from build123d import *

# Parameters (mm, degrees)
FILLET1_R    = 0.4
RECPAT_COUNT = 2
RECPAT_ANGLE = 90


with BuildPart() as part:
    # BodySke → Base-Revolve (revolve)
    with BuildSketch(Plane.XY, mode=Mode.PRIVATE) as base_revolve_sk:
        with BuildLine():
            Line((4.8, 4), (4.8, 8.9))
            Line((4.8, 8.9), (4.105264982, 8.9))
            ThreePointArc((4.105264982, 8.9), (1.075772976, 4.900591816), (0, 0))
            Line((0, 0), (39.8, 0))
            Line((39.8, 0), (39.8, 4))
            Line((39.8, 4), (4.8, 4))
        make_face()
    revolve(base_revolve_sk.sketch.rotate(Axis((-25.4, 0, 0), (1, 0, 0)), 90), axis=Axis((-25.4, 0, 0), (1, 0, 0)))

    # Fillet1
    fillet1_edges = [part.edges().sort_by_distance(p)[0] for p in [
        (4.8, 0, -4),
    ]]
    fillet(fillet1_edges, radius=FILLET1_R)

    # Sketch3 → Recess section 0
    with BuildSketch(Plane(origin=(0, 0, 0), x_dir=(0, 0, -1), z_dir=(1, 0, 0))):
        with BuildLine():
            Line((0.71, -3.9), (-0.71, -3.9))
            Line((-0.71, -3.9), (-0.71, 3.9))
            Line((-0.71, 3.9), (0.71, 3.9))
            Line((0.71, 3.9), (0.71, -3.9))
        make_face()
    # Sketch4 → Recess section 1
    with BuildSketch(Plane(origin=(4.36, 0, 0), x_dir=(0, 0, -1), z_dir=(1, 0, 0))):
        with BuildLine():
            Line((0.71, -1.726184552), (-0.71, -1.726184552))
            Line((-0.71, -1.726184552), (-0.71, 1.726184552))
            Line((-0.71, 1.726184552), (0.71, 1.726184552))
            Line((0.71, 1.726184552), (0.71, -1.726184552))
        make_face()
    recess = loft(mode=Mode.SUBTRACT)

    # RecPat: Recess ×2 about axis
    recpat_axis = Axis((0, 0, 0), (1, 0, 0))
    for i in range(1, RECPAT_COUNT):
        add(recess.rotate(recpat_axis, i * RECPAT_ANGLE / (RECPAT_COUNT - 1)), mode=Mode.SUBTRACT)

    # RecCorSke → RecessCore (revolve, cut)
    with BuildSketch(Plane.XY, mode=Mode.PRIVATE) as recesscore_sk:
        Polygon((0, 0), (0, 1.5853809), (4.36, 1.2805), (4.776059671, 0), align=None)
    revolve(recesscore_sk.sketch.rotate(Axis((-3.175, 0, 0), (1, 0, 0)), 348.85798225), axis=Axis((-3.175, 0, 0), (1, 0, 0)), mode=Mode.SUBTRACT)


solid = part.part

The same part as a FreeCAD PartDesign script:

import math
import FreeCAD as App
import Part
import Sketcher

V = App.Vector
Q = App.Units.Quantity


def edges_at(feature, points):
    """Names of the edges that pass closest to the given points."""
    edges = feature.Shape.Edges
    near = lambda p: min(range(len(edges)), key=lambda i: edges[i].distToShape(Part.Vertex(*p))[0])
    return sorted({f"Edge{near(p) + 1}" for p in points})


def add_polygon(sketch, points):
    """Adds a closed chain of lines whose ends are joined by coincident constraints."""
    first, n = sketch.GeometryCount, len(points)
    for a, b in zip(points, points[1:] + points[:1]):
        sketch.addGeometry(Part.LineSegment(App.Vector(*a, 0), App.Vector(*b, 0)), False)
    for i in range(n):
        sketch.addConstraint(Sketcher.Constraint("Coincident", first + i, 2, first + (i + 1) % n, 1))

doc = App.newDocument("Part")
body = doc.addObject("PartDesign::Body", "Body")

# Sketch on XY plane
sketch1 = body.newObject("Sketcher::SketchObject", "Sketch")
sketch1.AttachmentSupport = (doc.getObject("XY_Plane"), [""])
sketch1.MapMode = "FlatFace"
sketch1.addGeometry([
    Part.LineSegment(V(4.8, 4, 0), V(4.8, 8.9, 0)),  # 0
    Part.LineSegment(V(4.8, 8.9, 0), V(4.1, 8.9, 0)),  # 1
    Part.ArcOfCircle(Part.Circle(V(11.7, 0, 0), V(0, 0, 1), 11.7), math.radians(130), math.radians(180)),  # 2
    Part.LineSegment(V(0, 0, 0), V(39.8, 0, 0)),  # 3
    Part.LineSegment(V(39.8, 0, 0), V(39.8, 4, 0)),  # 4
    Part.LineSegment(V(39.8, 4, 0), V(4.8, 4, 0)),  # 5
], False)
sketch1.addConstraint([
    Sketcher.Constraint("Coincident", 0, 2, 1, 1),
    Sketcher.Constraint("Coincident", 1, 2, 2, 1),
    Sketcher.Constraint("Coincident", 2, 2, 3, 1),
    Sketcher.Constraint("Coincident", 3, 2, 4, 1),
    Sketcher.Constraint("Coincident", 4, 2, 5, 1),
    Sketcher.Constraint("Coincident", 5, 2, 0, 1),
    Sketcher.Constraint("Vertical", 0),
    Sketcher.Constraint("Horizontal", 1),
    Sketcher.Constraint("Horizontal", 3),
    Sketcher.Constraint("Vertical", 4),
    Sketcher.Constraint("Horizontal", 5),
    Sketcher.Constraint("Coincident", 2, 2, -1, 1),
    Sketcher.Constraint("PointOnObject", 2, 3, -1),
    Sketcher.Constraint("Radius", 2, Q("11.7 mm")),
    Sketcher.Constraint("DistanceX", 5, 2, 5, 1, Q("35 mm")),
    Sketcher.Constraint("DistanceY", 4, 1, 4, 2, Q("4 mm")),
    Sketcher.Constraint("DistanceX", 3, 1, 3, 2, Q("39.8 mm")),
    Sketcher.Constraint("DistanceY", 0, 1, 0, 2, Q("4.9 mm")),
])
revolution = body.newObject("PartDesign::Revolution", "Revolution")
revolution.Profile = sketch1
revolution.ReferenceAxis = (sketch1, ["H_Axis"])
revolution.Angle = 360
doc.recompute()

fillet = body.newObject("PartDesign::Fillet", "Fillet")
fillet.Base = (revolution, edges_at(revolution, [(4.8, 0, -4)]))
fillet.Radius = 0.4

# Sketch on YZ plane
sketch2 = body.newObject("Sketcher::SketchObject", "Sketch001")
sketch2.AttachmentSupport = (doc.getObject("YZ_Plane"), [""])
sketch2.MapMode = "FlatFace"
add_polygon(sketch2, [(-3.9, 0.7), (-3.9, -0.7), (3.9, -0.7), (3.9, 0.7)])  # lines 0-3
sketch2.addConstraint([
    Sketcher.Constraint("Vertical", 0),
    Sketcher.Constraint("Horizontal", 1),
    Sketcher.Constraint("Vertical", 2),
    Sketcher.Constraint("Horizontal", 3),
    Sketcher.Constraint("Symmetric", 0, 2, 2, 2, -1, 1),
    Sketcher.Constraint("DistanceX", 1, 1, 1, 2, Q("7.8 mm")),
    Sketcher.Constraint("DistanceY", 0, 2, 0, 1, Q("1.42 mm")),
])

# Sketch on YZ plane
sketch3 = body.newObject("Sketcher::SketchObject", "Sketch002")
sketch3.AttachmentSupport = (doc.getObject("YZ_Plane"), [""])
sketch3.MapMode = "FlatFace"
sketch3.AttachmentOffset = App.Placement(V(0, 0, 4.36), App.Rotation())
add_polygon(sketch3, [(-1.7, 0.7), (-1.7, -0.7), (1.7, -0.7), (1.7, 0.7)])  # lines 0-3
sketch3.addConstraint([
    Sketcher.Constraint("Vertical", 0),
    Sketcher.Constraint("Horizontal", 1),
    Sketcher.Constraint("Vertical", 2),
    Sketcher.Constraint("Horizontal", 3),
    Sketcher.Constraint("Symmetric", 0, 2, 2, 2, -1, 1),
    Sketcher.Constraint("DistanceY", 0, 2, 0, 1, Q("1.42 mm")),
    Sketcher.Constraint("DistanceX", 1, 1, 1, 2, Q("3.452369 mm")),
])

subtractiveloft = body.newObject("PartDesign::SubtractiveLoft", "SubtractiveLoft")
subtractiveloft.Profile = sketch2
subtractiveloft.Sections = [sketch3]
doc.recompute()

polarpattern = body.newObject("PartDesign::PolarPattern", "PolarPattern")
polarpattern.Originals = [subtractiveloft]
polarpattern.Axis = (doc.getObject("X_Axis"), [""])
polarpattern.Angle = 90
polarpattern.Occurrences = 2
body.Tip = polarpattern

# Sketch on XY plane
sketch4 = body.newObject("Sketcher::SketchObject", "Sketch003")
sketch4.AttachmentSupport = (doc.getObject("XY_Plane"), [""])
sketch4.MapMode = "FlatFace"
add_polygon(sketch4, [(0, 1.6), (0, 0), (4.8, 0), (4.4, 1.3)])  # lines 0-3
sketch4.addConstraint([
    Sketcher.Constraint("Vertical", 0),
    Sketcher.Constraint("Horizontal", 1),
    Sketcher.Constraint("Coincident", 0, 2, -1, 1),
    Sketcher.Constraint("Angle", 2, Q("108 deg")),
    Sketcher.Constraint("Angle", 3, Q("176 deg")),
    Sketcher.Constraint("DistanceX", -1, 1, 2, 2, Q("4.36 mm")),
    Sketcher.Constraint("DistanceX", 1, 1, 1, 2, Q("4.77606 mm")),
])
groove = body.newObject("PartDesign::Groove", "Groove")
groove.Profile = sketch4
groove.ReferenceAxis = (sketch4, ["H_Axis"])
groove.Angle = 360

doc.recompute()
